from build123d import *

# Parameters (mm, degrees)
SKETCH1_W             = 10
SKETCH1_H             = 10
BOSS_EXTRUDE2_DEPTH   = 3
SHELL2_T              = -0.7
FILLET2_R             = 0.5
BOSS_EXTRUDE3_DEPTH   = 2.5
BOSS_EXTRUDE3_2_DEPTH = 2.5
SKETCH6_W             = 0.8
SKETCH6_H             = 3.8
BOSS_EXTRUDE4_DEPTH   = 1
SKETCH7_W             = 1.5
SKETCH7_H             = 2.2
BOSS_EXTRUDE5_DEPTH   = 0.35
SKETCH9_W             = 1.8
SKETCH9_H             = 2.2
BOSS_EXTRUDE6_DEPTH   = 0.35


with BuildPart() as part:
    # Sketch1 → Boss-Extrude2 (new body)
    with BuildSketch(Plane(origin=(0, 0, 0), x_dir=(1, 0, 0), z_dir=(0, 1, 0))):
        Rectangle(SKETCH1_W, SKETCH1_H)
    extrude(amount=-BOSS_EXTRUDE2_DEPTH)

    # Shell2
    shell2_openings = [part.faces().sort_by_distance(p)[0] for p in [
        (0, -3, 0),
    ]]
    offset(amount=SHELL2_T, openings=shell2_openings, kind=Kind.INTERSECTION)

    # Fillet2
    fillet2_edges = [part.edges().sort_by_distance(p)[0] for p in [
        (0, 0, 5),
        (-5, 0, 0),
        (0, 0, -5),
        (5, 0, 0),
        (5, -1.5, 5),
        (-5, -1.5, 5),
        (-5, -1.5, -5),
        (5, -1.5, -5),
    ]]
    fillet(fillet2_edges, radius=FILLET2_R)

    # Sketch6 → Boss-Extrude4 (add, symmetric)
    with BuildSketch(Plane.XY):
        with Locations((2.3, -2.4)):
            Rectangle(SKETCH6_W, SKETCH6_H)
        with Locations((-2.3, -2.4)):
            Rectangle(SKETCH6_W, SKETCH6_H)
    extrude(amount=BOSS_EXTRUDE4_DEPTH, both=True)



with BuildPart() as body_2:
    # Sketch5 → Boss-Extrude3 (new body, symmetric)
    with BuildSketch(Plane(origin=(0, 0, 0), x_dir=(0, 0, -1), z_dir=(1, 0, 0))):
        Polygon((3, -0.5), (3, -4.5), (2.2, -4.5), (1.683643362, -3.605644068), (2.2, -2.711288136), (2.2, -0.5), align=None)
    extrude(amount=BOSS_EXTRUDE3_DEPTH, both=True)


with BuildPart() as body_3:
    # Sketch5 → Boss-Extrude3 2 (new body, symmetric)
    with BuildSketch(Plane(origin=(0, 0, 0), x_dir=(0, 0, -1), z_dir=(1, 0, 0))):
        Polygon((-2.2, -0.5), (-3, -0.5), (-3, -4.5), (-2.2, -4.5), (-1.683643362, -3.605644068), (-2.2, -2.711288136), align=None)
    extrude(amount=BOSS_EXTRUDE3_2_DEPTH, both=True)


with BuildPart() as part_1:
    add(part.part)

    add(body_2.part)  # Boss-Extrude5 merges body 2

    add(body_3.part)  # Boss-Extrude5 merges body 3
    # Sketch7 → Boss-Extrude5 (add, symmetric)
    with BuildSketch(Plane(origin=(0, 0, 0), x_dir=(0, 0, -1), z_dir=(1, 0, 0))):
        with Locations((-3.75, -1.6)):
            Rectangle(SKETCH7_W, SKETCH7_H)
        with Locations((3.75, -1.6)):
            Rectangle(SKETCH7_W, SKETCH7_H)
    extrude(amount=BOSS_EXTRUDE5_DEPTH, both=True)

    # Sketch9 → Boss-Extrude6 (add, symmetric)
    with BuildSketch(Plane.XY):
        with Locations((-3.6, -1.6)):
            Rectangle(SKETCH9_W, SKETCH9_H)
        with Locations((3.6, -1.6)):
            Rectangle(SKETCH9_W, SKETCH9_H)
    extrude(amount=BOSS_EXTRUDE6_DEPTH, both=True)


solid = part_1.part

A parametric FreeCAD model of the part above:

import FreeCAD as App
import Part
import Sketcher
from FreeCAD import Vector
Q = App.Units.Quantity


def edges_at(feature, points):
    """Names of the edges that pass closest to the given points."""
    edges = feature.Shape.Edges
    near = lambda p: min(range(len(edges)), key=lambda i: edges[i].distToShape(Part.Vertex(*p))[0])
    return sorted({f"Edge{near(p) + 1}" for p in points})


def faces_at(feature, points):
    """Names of the faces that lie closest to the given points."""
    faces = feature.Shape.Faces
    near = lambda p: min(range(len(faces)), key=lambda i: faces[i].distToShape(Part.Vertex(*p))[0])
    return sorted({f"Face{near(p) + 1}" for p in points})

doc = App.newDocument("Part")
body = doc.addObject("PartDesign::Body", "Body")

# Sketch on XZ plane
sketch1 = body.newObject("Sketcher::SketchObject", "Sketch")
sketch1.AttachmentSupport = (doc.getObject("XZ_Plane"), [""])
sketch1.MapMode = "FlatFace"
sketch1.addGeometry([
    Part.LineSegment(Vector(-5, -5, 0), Vector(-5, 5, 0)),
    Part.LineSegment(Vector(-5, 5, 0), Vector(5, 5, 0)),
    Part.LineSegment(Vector(5, 5, 0), Vector(5, -5, 0)),
    Part.LineSegment(Vector(5, -5, 0), Vector(-5, -5, 0)),
], False)
sketch1.addConstraint([
    Sketcher.Constraint("Coincident", 0, 2, 1, 1),
    Sketcher.Constraint("Coincident", 1, 2, 2, 1),
    Sketcher.Constraint("Coincident", 2, 2, 3, 1),
    Sketcher.Constraint("Coincident", 3, 2, 0, 1),
    Sketcher.Constraint("Vertical", 0),
    Sketcher.Constraint("Horizontal", 1),
    Sketcher.Constraint("Vertical", 2),
    Sketcher.Constraint("Horizontal", 3),
    Sketcher.Constraint("Symmetric", 0, 2, 2, 2, -1, 1),
    Sketcher.Constraint("Equal", 3, 0),
    Sketcher.Constraint("DistanceX", 1, 1, 1, 2, 10.0),
])
pad1 = body.newObject("PartDesign::Pad", "Pad")
pad1.Profile = sketch1
pad1.Length = 3
doc.recompute()

thickness = body.newObject("PartDesign::Thickness", "Thickness")
thickness.Base = (pad1, faces_at(pad1, [(0, -3, 0)]))
thickness.Value = 0.7
thickness.Reversed = True
thickness.Join = "Intersection"
doc.recompute()

fillet = body.newObject("PartDesign::Fillet", "Fillet")
fillet.Base = (thickness, edges_at(thickness, [
    (0, 0, 5),
    (-5, 0, 0),
    (0, 0, -5),
    (5, 0, 0),
    (5, -1.5, 5),
    (-5, -1.5, 5),
    (-5, -1.5, -5),
    (5, -1.5, -5),
]))
fillet.Radius = 0.5

# Sketch on XY plane
sketch2 = body.newObject("Sketcher::SketchObject", "Sketch001")
sketch2.AttachmentSupport = (doc.getObject("XY_Plane"), [""])
sketch2.MapMode = "FlatFace"
sketch2.addGeometry([
    Part.LineSegment(Vector(1.9, -0.5, 0), Vector(1.9, -4.3, 0)),  # 0
    Part.LineSegment(Vector(1.9, -4.3, 0), Vector(2.7, -4.3, 0)),  # 1
    Part.LineSegment(Vector(2.7, -4.3, 0), Vector(2.7, -0.5, 0)),  # 2
    Part.LineSegment(Vector(2.7, -0.5, 0), Vector(1.9, -0.5, 0)),  # 3
    Part.LineSegment(Vector(-2.7, -0.5, 0), Vector(-2.7, -4.3, 0)),  # 4
    Part.LineSegment(Vector(-2.7, -4.3, 0), Vector(-1.9, -4.3, 0)),  # 5
    Part.LineSegment(Vector(-1.9, -4.3, 0), Vector(-1.9, -0.5, 0)),  # 6
    Part.LineSegment(Vector(-1.9, -0.5, 0), Vector(-2.7, -0.5, 0)),  # 7
], False)
sketch2.addConstraint([
    Sketcher.Constraint("Coincident", 0, 2, 1, 1),
    Sketcher.Constraint("Coincident", 1, 2, 2, 1),
    Sketcher.Constraint("Coincident", 2, 2, 3, 1),
    Sketcher.Constraint("Coincident", 3, 2, 0, 1),
    Sketcher.Constraint("Coincident", 4, 2, 5, 1),
    Sketcher.Constraint("Coincident", 5, 2, 6, 1),
    Sketcher.Constraint("Coincident", 6, 2, 7, 1),
    Sketcher.Constraint("Coincident", 7, 2, 4, 1),
    Sketcher.Constraint("Vertical", 0),
    Sketcher.Constraint("Horizontal", 1),
    Sketcher.Constraint("Vertical", 2),
    Sketcher.Constraint("Horizontal", 3),
    Sketcher.Constraint("Vertical", 4),
    Sketcher.Constraint("Horizontal", 5),
    Sketcher.Constraint("Vertical", 6),
    Sketcher.Constraint("Horizontal", 7),
    Sketcher.Constraint("Symmetric", 1, 2, 4, 2, -2),
    Sketcher.Constraint("Symmetric", 3, 2, 6, 2, -2),
    Sketcher.Constraint("DistanceX", 1, 1, 1, 2, 0.8),
    Sketcher.Constraint("DistanceY", 0, 2, 0, 1, 3.8),
    Sketcher.Constraint("DistanceX", -1, 1, 0, 2, 1.9),
    Sketcher.Constraint("DistanceY", 0, 2, -1, 1, 4.3),
])
pad2 = body.newObject("PartDesign::Pad", "Pad001")
pad2.Profile = sketch2
pad2.Length = 2
pad2.Midplane = True
body2 = doc.addObject("PartDesign::Body", "Body001")

# Sketch on YZ plane
sketch3 = body2.newObject("Sketcher::SketchObject", "Sketch002")
sketch3.AttachmentSupport = (doc.getObject("YZ_Plane001"), [""])
sketch3.MapMode = "FlatFace"
sketch3.addGeometry([
    Part.LineSegment(Vector(-4.5, -3, 0), Vector(-0.5, -3, 0)),  # 0
    Part.LineSegment(Vector(-0.5, -3, 0), Vector(-0.5, -2.2, 0)),  # 1
    Part.LineSegment(Vector(-0.5, -2.2, 0), Vector(-2.7, -2.2, 0)),  # 2
    Part.LineSegment(Vector(-2.7, -2.2, 0), Vector(-3.6, -1.7, 0)),  # 3
    Part.LineSegment(Vector(-3.6, -1.7, 0), Vector(-4.5, -2.2, 0)),  # 4
    Part.LineSegment(Vector(-4.5, -2.2, 0), Vector(-4.5, -3, 0)),  # 5
], False)
sketch3.addConstraint([
    Sketcher.Constraint("Coincident", 0, 2, 1, 1),
    Sketcher.Constraint("Coincident", 1, 2, 2, 1),
    Sketcher.Constraint("Coincident", 2, 2, 3, 1),
    Sketcher.Constraint("Coincident", 3, 2, 4, 1),
    Sketcher.Constraint("Coincident", 4, 2, 5, 1),
    Sketcher.Constraint("Coincident", 5, 2, 0, 1),
    Sketcher.Constraint("Horizontal", 0),
    Sketcher.Constraint("Vertical", 1),
    Sketcher.Constraint("Horizontal", 2),
    Sketcher.Constraint("Vertical", 5),
    Sketcher.Constraint("Horizontal", 2, 2, 4, 2),
    Sketcher.Constraint("Equal", 3, 4),
    Sketcher.Constraint("DistanceX", 0, 1, 0, 2, 4.0),
    Sketcher.Constraint("Angle", 3, Q("150 deg")),
    Sketcher.Constraint("DistanceY", 1, 1, 1, 2, 0.8),
    Sketcher.Constraint("DistanceY", 0, 2, -1, 1, 3.0),
    Sketcher.Constraint("DistanceX", 0, 2, -1, 1, 0.5),
    Sketcher.Constraint("DistanceX", 2, 2, 2, 1, 2.211288),
])
pad3 = body2.newObject("PartDesign::Pad", "Pad002")
pad3.Profile = sketch3
pad3.Length = 5
pad3.Midplane = True
body3 = doc.addObject("PartDesign::Body", "Body002")

# Sketch on YZ plane
sketch4 = body3.newObject("Sketcher::SketchObject", "Sketch003")
sketch4.AttachmentSupport = (doc.getObject("YZ_Plane002"), [""])
sketch4.MapMode = "FlatFace"
sketch4.addGeometry([
    Part.LineSegment(Vector(-0.5, 2.2, 0), Vector(-0.5, 3, 0)),  # 0
    Part.LineSegment(Vector(-0.5, 3, 0), Vector(-4.5, 3, 0)),  # 1
    Part.LineSegment(Vector(-4.5, 3, 0), Vector(-4.5, 2.2, 0)),  # 2
    Part.LineSegment(Vector(-4.5, 2.2, 0), Vector(-3.6, 1.7, 0)),  # 3
    Part.LineSegment(Vector(-3.6, 1.7, 0), Vector(-2.7, 2.2, 0)),  # 4
    Part.LineSegment(Vector(-2.7, 2.2, 0), Vector(-0.5, 2.2, 0)),  # 5
], False)
sketch4.addConstraint([
    Sketcher.Constraint("Coincident", 0, 2, 1, 1),
    Sketcher.Constraint("Coincident", 1, 2, 2, 1),
    Sketcher.Constraint("Coincident", 2, 2, 3, 1),
    Sketcher.Constraint("Coincident", 3, 2, 4, 1),
    Sketcher.Constraint("Coincident", 4, 2, 5, 1),
    Sketcher.Constraint("Coincident", 5, 2, 0, 1),
    Sketcher.Constraint("Vertical", 0),
    Sketcher.Constraint("Horizontal", 1),
    Sketcher.Constraint("Vertical", 2),
    Sketcher.Constraint("Horizontal", 5),
    Sketcher.Constraint("Horizontal", 2, 2, 4, 2),
    Sketcher.Constraint("Equal", 3, 4),
    Sketcher.Constraint("DistanceX", 1, 2, 1, 1, 4.0),
    Sketcher.Constraint("Angle", 3, Q("-30 deg")),
    Sketcher.Constraint("DistanceY", 0, 1, 0, 2, 0.8),
    Sketcher.Constraint("DistanceY", -1, 1, 0, 2, 3.0),
    Sketcher.Constraint("DistanceX", 0, 2, -1, 1, 0.5),
    Sketcher.Constraint("DistanceX", 5, 1, 5, 2, 2.211288),
])
pad4 = body3.newObject("PartDesign::Pad", "Pad003")
pad4.Profile = sketch4
pad4.Length = 5
pad4.Midplane = True
doc.recompute()

boolean = body.newObject("PartDesign::Boolean", "Boolean")
boolean.Type = "Fuse"
boolean.addObjects([body2])
doc.recompute()

boolean2 = body.newObject("PartDesign::Boolean", "Boolean001")
boolean2.Type = "Fuse"
boolean2.addObjects([body3])

# Sketch on YZ plane
sketch5 = body.newObject("Sketcher::SketchObject", "Sketch004")
sketch5.AttachmentSupport = (doc.getObject("YZ_Plane"), [""])
sketch5.MapMode = "FlatFace"
sketch5.addGeometry([
    Part.LineSegment(Vector(-0.5, 4.5, 0), Vector(-2.7, 4.5, 0)),  # 0
    Part.LineSegment(Vector(-2.7, 4.5, 0), Vector(-2.7, 3, 0)),  # 1
    Part.LineSegment(Vector(-2.7, 3, 0), Vector(-0.5, 3, 0)),  # 2
    Part.LineSegment(Vector(-0.5, 3, 0), Vector(-0.5, 4.5, 0)),  # 3
    Part.LineSegment(Vector(-0.5, -3, 0), Vector(-2.7, -3, 0)),  # 4
    Part.LineSegment(Vector(-2.7, -3, 0), Vector(-2.7, -4.5, 0)),  # 5
    Part.LineSegment(Vector(-2.7, -4.5, 0), Vector(-0.5, -4.5, 0)),  # 6
    Part.LineSegment(Vector(-0.5, -4.5, 0), Vector(-0.5, -3, 0)),  # 7
], False)
sketch5.addConstraint([
    Sketcher.Constraint("Coincident", 0, 2, 1, 1),
    Sketcher.Constraint("Coincident", 1, 2, 2, 1),
    Sketcher.Constraint("Coincident", 2, 2, 3, 1),
    Sketcher.Constraint("Coincident", 3, 2, 0, 1),
    Sketcher.Constraint("Coincident", 4, 2, 5, 1),
    Sketcher.Constraint("Coincident", 5, 2, 6, 1),
    Sketcher.Constraint("Coincident", 6, 2, 7, 1),
    Sketcher.Constraint("Coincident", 7, 2, 4, 1),
    Sketcher.Constraint("Horizontal", 0),
    Sketcher.Constraint("Vertical", 1),
    Sketcher.Constraint("Horizontal", 2),
    Sketcher.Constraint("Vertical", 3),
    Sketcher.Constraint("Horizontal", 4),
    Sketcher.Constraint("Vertical", 5),
    Sketcher.Constraint("Horizontal", 6),
    Sketcher.Constraint("Vertical", 7),
    Sketcher.Constraint("Symmetric", 1, 2, 4, 2, -1),
    Sketcher.Constraint("Symmetric", 3, 2, 6, 2, -1),
    Sketcher.Constraint("DistanceX", 0, 2, 0, 1, 2.2),
    Sketcher.Constraint("DistanceY", 1, 2, 1, 1, 1.5),
    Sketcher.Constraint("DistanceY", -1, 1, 1, 2, 3.0),
    Sketcher.Constraint("DistanceX", 0, 2, -1, 1, 2.7),
])
pad5 = body.newObject("PartDesign::Pad", "Pad004")
pad5.Profile = sketch5
pad5.Length = 0.7
pad5.Midplane = True

# Sketch on XY plane
sketch6 = body.newObject("Sketcher::SketchObject", "Sketch005")
sketch6.AttachmentSupport = (doc.getObject("XY_Plane"), [""])
sketch6.MapMode = "FlatFace"
sketch6.addGeometry([
    Part.LineSegment(Vector(-4.5, -0.5, 0), Vector(-4.5, -2.7, 0)),  # 0
    Part.LineSegment(Vector(-4.5, -2.7, 0), Vector(-2.7, -2.7, 0)),  # 1
    Part.LineSegment(Vector(-2.7, -2.7, 0), Vector(-2.7, -0.5, 0)),  # 2
    Part.LineSegment(Vector(-2.7, -0.5, 0), Vector(-4.5, -0.5, 0)),  # 3
    Part.LineSegment(Vector(2.7, -0.5, 0), Vector(2.7, -2.7, 0)),  # 4
    Part.LineSegment(Vector(2.7, -2.7, 0), Vector(4.5, -2.7, 0)),  # 5
    Part.LineSegment(Vector(4.5, -2.7, 0), Vector(4.5, -0.5, 0)),  # 6
    Part.LineSegment(Vector(4.5, -0.5, 0), Vector(2.7, -0.5, 0)),  # 7
], False)
sketch6.addConstraint([
    Sketcher.Constraint("Coincident", 0, 2, 1, 1),
    Sketcher.Constraint("Coincident", 1, 2, 2, 1),
    Sketcher.Constraint("Coincident", 2, 2, 3, 1),
    Sketcher.Constraint("Coincident", 3, 2, 0, 1),
    Sketcher.Constraint("Coincident", 4, 2, 5, 1),
    Sketcher.Constraint("Coincident", 5, 2, 6, 1),
    Sketcher.Constraint("Coincident", 6, 2, 7, 1),
    Sketcher.Constraint("Coincident", 7, 2, 4, 1),
    Sketcher.Constraint("Vertical", 0),
    Sketcher.Constraint("Horizontal", 1),
    Sketcher.Constraint("Vertical", 2),
    Sketcher.Constraint("Horizontal", 3),
    Sketcher.Constraint("Vertical", 4),
    Sketcher.Constraint("Horizontal", 5),
    Sketcher.Constraint("Vertical", 6),
    Sketcher.Constraint("Horizontal", 7),
    Sketcher.Constraint("Symmetric", 1, 2, 4, 2, -2),
    Sketcher.Constraint("Symmetric", 3, 2, 6, 2, -2),
    Sketcher.Constraint("DistanceX", 1, 1, 1, 2, 1.8),
    Sketcher.Constraint("DistanceY", 0, 2, 0, 1, 2.2),
    Sketcher.Constraint("DistanceX", 0, 2, 5, 2, 9.0),
    Sketcher.Constraint("DistanceY", 0, 2, -1, 1, 2.7),
])
pad6 = body.newObject("PartDesign::Pad", "Pad005")
pad6.Profile = sketch6
pad6.Length = 0.7
pad6.Midplane = True

doc.recompute()
